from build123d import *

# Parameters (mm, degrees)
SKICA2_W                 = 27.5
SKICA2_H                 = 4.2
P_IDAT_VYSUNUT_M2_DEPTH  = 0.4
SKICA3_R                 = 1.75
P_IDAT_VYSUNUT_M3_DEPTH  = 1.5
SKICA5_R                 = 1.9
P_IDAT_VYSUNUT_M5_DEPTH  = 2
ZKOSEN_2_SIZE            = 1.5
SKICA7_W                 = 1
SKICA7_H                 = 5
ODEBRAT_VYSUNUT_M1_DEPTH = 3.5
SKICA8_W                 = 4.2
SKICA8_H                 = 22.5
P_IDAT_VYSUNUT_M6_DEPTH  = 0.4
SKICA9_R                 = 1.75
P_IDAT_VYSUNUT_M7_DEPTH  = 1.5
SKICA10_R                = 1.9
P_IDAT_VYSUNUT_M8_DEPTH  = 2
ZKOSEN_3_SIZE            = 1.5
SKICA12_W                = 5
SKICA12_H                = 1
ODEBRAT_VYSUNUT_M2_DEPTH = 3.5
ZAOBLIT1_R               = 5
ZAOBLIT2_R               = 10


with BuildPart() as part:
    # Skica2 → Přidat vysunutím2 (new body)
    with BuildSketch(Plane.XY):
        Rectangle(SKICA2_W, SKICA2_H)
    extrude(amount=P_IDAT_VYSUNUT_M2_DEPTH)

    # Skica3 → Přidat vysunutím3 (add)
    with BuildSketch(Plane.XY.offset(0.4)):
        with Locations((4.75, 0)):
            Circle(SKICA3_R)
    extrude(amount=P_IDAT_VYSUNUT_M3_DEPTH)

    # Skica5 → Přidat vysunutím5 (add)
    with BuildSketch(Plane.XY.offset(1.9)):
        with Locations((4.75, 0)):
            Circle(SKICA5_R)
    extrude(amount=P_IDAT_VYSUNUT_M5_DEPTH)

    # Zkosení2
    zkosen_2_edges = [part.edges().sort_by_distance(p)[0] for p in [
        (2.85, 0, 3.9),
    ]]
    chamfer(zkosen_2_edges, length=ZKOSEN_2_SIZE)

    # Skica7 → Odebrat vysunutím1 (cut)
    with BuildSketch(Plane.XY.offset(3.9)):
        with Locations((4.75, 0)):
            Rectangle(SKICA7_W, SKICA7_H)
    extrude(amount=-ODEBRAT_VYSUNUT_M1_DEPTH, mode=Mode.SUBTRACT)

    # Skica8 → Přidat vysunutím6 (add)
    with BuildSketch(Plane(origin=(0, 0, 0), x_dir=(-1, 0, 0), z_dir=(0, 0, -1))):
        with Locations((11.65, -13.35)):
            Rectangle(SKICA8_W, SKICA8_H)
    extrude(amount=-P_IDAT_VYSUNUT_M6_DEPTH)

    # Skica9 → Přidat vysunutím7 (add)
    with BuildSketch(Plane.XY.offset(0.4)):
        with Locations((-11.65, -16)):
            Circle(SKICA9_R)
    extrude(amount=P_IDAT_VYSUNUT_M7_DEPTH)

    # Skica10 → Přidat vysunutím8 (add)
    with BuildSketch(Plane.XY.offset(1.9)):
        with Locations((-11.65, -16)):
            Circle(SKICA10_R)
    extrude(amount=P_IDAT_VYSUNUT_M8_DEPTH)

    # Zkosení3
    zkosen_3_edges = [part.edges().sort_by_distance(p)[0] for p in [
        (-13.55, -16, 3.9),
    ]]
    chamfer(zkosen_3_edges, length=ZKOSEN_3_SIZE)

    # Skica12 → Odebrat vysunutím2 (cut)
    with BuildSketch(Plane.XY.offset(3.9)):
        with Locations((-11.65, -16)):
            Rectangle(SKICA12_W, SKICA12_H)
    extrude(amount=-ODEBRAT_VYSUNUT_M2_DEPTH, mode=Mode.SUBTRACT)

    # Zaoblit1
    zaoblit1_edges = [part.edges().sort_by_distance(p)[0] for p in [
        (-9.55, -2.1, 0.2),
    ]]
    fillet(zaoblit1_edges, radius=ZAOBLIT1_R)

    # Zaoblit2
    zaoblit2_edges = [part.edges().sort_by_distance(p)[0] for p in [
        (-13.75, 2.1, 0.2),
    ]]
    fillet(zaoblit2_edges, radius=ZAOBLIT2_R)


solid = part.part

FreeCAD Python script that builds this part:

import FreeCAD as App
import Part
import Sketcher


def edges_at(feature, points):
    """Names of the edges that pass closest to the given points."""
    edges = feature.Shape.Edges
    near = lambda p: min(range(len(edges)), key=lambda i: edges[i].distToShape(Part.Vertex(*p))[0])
    return sorted({f"Edge{near(p) + 1}" for p in points})

doc = App.newDocument("Part")
body = doc.addObject("PartDesign::Body", "Body")

# Sketch on XY plane
sketch1 = body.newObject("Sketcher::SketchObject", "Sketch")
sketch1.AttachmentSupport = (doc.getObject("XY_Plane"), [""])
sketch1.MapMode = "FlatFace"
sketch1.addGeometry([
    Part.LineSegment(App.Vector(-13.8, 2.1, 0), App.Vector(-13.8, -2.1, 0)),
    Part.LineSegment(App.Vector(-13.8, -2.1, 0), App.Vector(13.8, -2.1, 0)),
    Part.LineSegment(App.Vector(13.8, -2.1, 0), App.Vector(13.8, 2.1, 0)),
    Part.LineSegment(App.Vector(13.8, 2.1, 0), App.Vector(-13.8, 2.1, 0)),
], False)
sketch1.addConstraint([
    Sketcher.Constraint("Coincident", 0, 2, 1, 1),
    Sketcher.Constraint("Coincident", 1, 2, 2, 1),
    Sketcher.Constraint("Coincident", 2, 2, 3, 1),
    Sketcher.Constraint("Coincident", 3, 2, 0, 1),
    Sketcher.Constraint("Vertical", 0),
    Sketcher.Constraint("Horizontal", 1),
    Sketcher.Constraint("Vertical", 2),
    Sketcher.Constraint("Horizontal", 3),
    Sketcher.Constraint("Symmetric", 0, 2, 2, 2, -1, 1),
    Sketcher.Constraint("DistanceX", 1, 1, 1, 2, 27.5),
    Sketcher.Constraint("DistanceY", 0, 2, 0, 1, 4.2),
])
pad1 = body.newObject("PartDesign::Pad", "Pad")
pad1.Profile = sketch1
pad1.Length = 0.4

# Sketch on XY plane
sketch2 = body.newObject("Sketcher::SketchObject", "Sketch001")
sketch2.AttachmentSupport = (doc.getObject("XY_Plane"), [""])
sketch2.MapMode = "FlatFace"
sketch2.AttachmentOffset = App.Placement(App.Vector(0, 0, 0.4), App.Rotation())
sketch2.addGeometry(Part.Circle(App.Vector(4.8, 0, 0), App.Vector(0, 0, 1), 1.8), False)
sketch2.addConstraint([
    Sketcher.Constraint("PointOnObject", 0, 3, -1),
    Sketcher.Constraint("Diameter", 0, 3.5),
    Sketcher.Constraint("DistanceX", -1, 1, 0, 3, 4.75),
])
pad2 = body.newObject("PartDesign::Pad", "Pad001")
pad2.Profile = sketch2
pad2.Length = 1.5

# Sketch on XY plane
sketch3 = body.newObject("Sketcher::SketchObject", "Sketch002")
sketch3.AttachmentSupport = (doc.getObject("XY_Plane"), [""])
sketch3.MapMode = "FlatFace"
sketch3.AttachmentOffset = App.Placement(App.Vector(0, 0, 1.9), App.Rotation())
sketch3.addGeometry(Part.Circle(App.Vector(4.8, 0, 0), App.Vector(0, 0, 1), 1.9), False)
sketch3.addConstraint([
    Sketcher.Constraint("PointOnObject", 0, 3, -1),
    Sketcher.Constraint("Diameter", 0, 3.8),
    Sketcher.Constraint("DistanceX", -1, 1, 0, 3, 4.75),
])
pad3 = body.newObject("PartDesign::Pad", "Pad002")
pad3.Profile = sketch3
pad3.Length = 2
doc.recompute()

chamfer = body.newObject("PartDesign::Chamfer", "Chamfer")
chamfer.Base = (pad3, edges_at(pad3, [(2.85, 0, 3.9)]))
chamfer.Size = 1.5

# Sketch on XY plane
sketch4 = body.newObject("Sketcher::SketchObject", "Sketch003")
sketch4.AttachmentSupport = (doc.getObject("XY_Plane"), [""])
sketch4.MapMode = "FlatFace"
sketch4.AttachmentOffset = App.Placement(App.Vector(0, 0, 3.9), App.Rotation())
sketch4.addGeometry([
    Part.LineSegment(App.Vector(4.2, 2.5, 0), App.Vector(4.2, -2.5, 0)),
    Part.LineSegment(App.Vector(4.2, -2.5, 0), App.Vector(5.2, -2.5, 0)),
    Part.LineSegment(App.Vector(5.2, -2.5, 0), App.Vector(5.2, 2.5, 0)),
    Part.LineSegment(App.Vector(5.2, 2.5, 0), App.Vector(4.2, 2.5, 0)),
], False)
sketch4.addConstraint([
    Sketcher.Constraint("Coincident", 0, 2, 1, 1),
    Sketcher.Constraint("Coincident", 1, 2, 2, 1),
    Sketcher.Constraint("Coincident", 2, 2, 3, 1),
    Sketcher.Constraint("Coincident", 3, 2, 0, 1),
    Sketcher.Constraint("Vertical", 0),
    Sketcher.Constraint("Horizontal", 1),
    Sketcher.Constraint("Vertical", 2),
    Sketcher.Constraint("Horizontal", 3),
    Sketcher.Constraint("DistanceX", 1, 1, 1, 2, 1.0),
    Sketcher.Constraint("DistanceY", 0, 2, 0, 1, 5.0),
    Sketcher.Constraint("DistanceY", 0, 2, -1, 1, 2.5),
    Sketcher.Constraint("DistanceX", -1, 1, 0, 2, 4.25),
])
pocket1 = body.newObject("PartDesign::Pocket", "Pocket")
pocket1.Profile = sketch4
pocket1.Length = 3.5

# Sketch on XY plane
sketch5 = body.newObject("Sketcher::SketchObject", "Sketch004")
sketch5.AttachmentSupport = (doc.getObject("XY_Plane"), [""])
sketch5.MapMode = "FlatFace"
sketch5.addGeometry([
    Part.LineSegment(App.Vector(-9.6, -2.1, 0), App.Vector(-9.6, -24.6, 0)),
    Part.LineSegment(App.Vector(-9.6, -24.6, 0), App.Vector(-13.8, -24.6, 0)),
    Part.LineSegment(App.Vector(-13.8, -24.6, 0), App.Vector(-13.8, -2.1, 0)),
    Part.LineSegment(App.Vector(-13.8, -2.1, 0), App.Vector(-9.6, -2.1, 0)),
], False)
sketch5.addConstraint([
    Sketcher.Constraint("Coincident", 0, 2, 1, 1),
    Sketcher.Constraint("Coincident", 1, 2, 2, 1),
    Sketcher.Constraint("Coincident", 2, 2, 3, 1),
    Sketcher.Constraint("Coincident", 3, 2, 0, 1),
    Sketcher.Constraint("Vertical", 0),
    Sketcher.Constraint("Horizontal", 1),
    Sketcher.Constraint("Vertical", 2),
    Sketcher.Constraint("Horizontal", 3),
    Sketcher.Constraint("DistanceX", 1, 2, 1, 1, 4.2),
    Sketcher.Constraint("DistanceY", 0, 2, 0, 1, 22.5),
    Sketcher.Constraint("DistanceY", 0, 2, -1, 1, 24.6),
    Sketcher.Constraint("DistanceX", 0, 2, -1, 1, 9.55),
])
pad4 = body.newObject("PartDesign::Pad", "Pad003")
pad4.Profile = sketch5
pad4.Length = 0.4

# Sketch on XY plane
sketch6 = body.newObject("Sketcher::SketchObject", "Sketch005")
sketch6.AttachmentSupport = (doc.getObject("XY_Plane"), [""])
sketch6.MapMode = "FlatFace"
sketch6.AttachmentOffset = App.Placement(App.Vector(0, 0, 0.4), App.Rotation())
sketch6.addGeometry(Part.Circle(App.Vector(-11.7, -16, 0), App.Vector(0, 0, 1), 1.8), False)
sketch6.addConstraint([
    Sketcher.Constraint("Diameter", 0, 3.5),
    Sketcher.Constraint("DistanceY", 0, 3, -1, 1, 16.0),
    Sketcher.Constraint("DistanceX", 0, 3, -1, 1, 11.65),
])
pad5 = body.newObject("PartDesign::Pad", "Pad004")
pad5.Profile = sketch6
pad5.Length = 1.5

# Sketch on XY plane
sketch7 = body.newObject("Sketcher::SketchObject", "Sketch006")
sketch7.AttachmentSupport = (doc.getObject("XY_Plane"), [""])
sketch7.MapMode = "FlatFace"
sketch7.AttachmentOffset = App.Placement(App.Vector(0, 0, 1.9), App.Rotation())
sketch7.addGeometry(Part.Circle(App.Vector(-11.7, -16, 0), App.Vector(0, 0, 1), 1.9), False)
sketch7.addConstraint([
    Sketcher.Constraint("Diameter", 0, 3.8),
    Sketcher.Constraint("DistanceY", 0, 3, -1, 1, 16.0),
    Sketcher.Constraint("DistanceX", 0, 3, -1, 1, 11.65),
])
pad6 = body.newObject("PartDesign::Pad", "Pad005")
pad6.Profile = sketch7
pad6.Length = 2
doc.recompute()

chamfer2 = body.newObject("PartDesign::Chamfer", "Chamfer001")
chamfer2.Base = (pad6, edges_at(pad6, [(-13.55, -16, 3.9)]))
chamfer2.Size = 1.5

# Sketch on XY plane
sketch8 = body.newObject("Sketcher::SketchObject", "Sketch007")
sketch8.AttachmentSupport = (doc.getObject("XY_Plane"), [""])
sketch8.MapMode = "FlatFace"
sketch8.AttachmentOffset = App.Placement(App.Vector(0, 0, 3.9), App.Rotation())
sketch8.addGeometry([
    Part.LineSegment(App.Vector(-14.2, -15.5, 0), App.Vector(-14.2, -16.5, 0)),
    Part.LineSegment(App.Vector(-14.2, -16.5, 0), App.Vector(-9.2, -16.5, 0)),
    Part.LineSegment(App.Vector(-9.2, -16.5, 0), App.Vector(-9.2, -15.5, 0)),
    Part.LineSegment(App.Vector(-9.2, -15.5, 0), App.Vector(-14.2, -15.5, 0)),
], False)
sketch8.addConstraint([
    Sketcher.Constraint("Coincident", 0, 2, 1, 1),
    Sketcher.Constraint("Coincident", 1, 2, 2, 1),
    Sketcher.Constraint("Coincident", 2, 2, 3, 1),
    Sketcher.Constraint("Coincident", 3, 2, 0, 1),
    Sketcher.Constraint("Vertical", 0),
    Sketcher.Constraint("Horizontal", 1),
    Sketcher.Constraint("Vertical", 2),
    Sketcher.Constraint("Horizontal", 3),
    Sketcher.Constraint("DistanceX", 1, 1, 1, 2, 5.0),
    Sketcher.Constraint("DistanceY", 0, 2, 0, 1, 1.0),
    Sketcher.Constraint("DistanceY", 0, 2, -1, 1, 16.5),
    Sketcher.Constraint("DistanceX", 0, 2, -1, 1, 14.15),
])
pocket2 = body.newObject("PartDesign::Pocket", "Pocket001")
pocket2.Profile = sketch8
pocket2.Length = 3.5
doc.recompute()

fillet = body.newObject("PartDesign::Fillet", "Fillet")
fillet.Base = (pocket2, edges_at(pocket2, [(-9.55, -2.1, 0.2)]))
fillet.Radius = 5
doc.recompute()

fillet2 = body.newObject("PartDesign::Fillet", "Fillet001")
fillet2.Base = (fillet, edges_at(fillet, [(-13.75, 2.1, 0.2)]))
fillet2.Radius = 10

doc.recompute()
